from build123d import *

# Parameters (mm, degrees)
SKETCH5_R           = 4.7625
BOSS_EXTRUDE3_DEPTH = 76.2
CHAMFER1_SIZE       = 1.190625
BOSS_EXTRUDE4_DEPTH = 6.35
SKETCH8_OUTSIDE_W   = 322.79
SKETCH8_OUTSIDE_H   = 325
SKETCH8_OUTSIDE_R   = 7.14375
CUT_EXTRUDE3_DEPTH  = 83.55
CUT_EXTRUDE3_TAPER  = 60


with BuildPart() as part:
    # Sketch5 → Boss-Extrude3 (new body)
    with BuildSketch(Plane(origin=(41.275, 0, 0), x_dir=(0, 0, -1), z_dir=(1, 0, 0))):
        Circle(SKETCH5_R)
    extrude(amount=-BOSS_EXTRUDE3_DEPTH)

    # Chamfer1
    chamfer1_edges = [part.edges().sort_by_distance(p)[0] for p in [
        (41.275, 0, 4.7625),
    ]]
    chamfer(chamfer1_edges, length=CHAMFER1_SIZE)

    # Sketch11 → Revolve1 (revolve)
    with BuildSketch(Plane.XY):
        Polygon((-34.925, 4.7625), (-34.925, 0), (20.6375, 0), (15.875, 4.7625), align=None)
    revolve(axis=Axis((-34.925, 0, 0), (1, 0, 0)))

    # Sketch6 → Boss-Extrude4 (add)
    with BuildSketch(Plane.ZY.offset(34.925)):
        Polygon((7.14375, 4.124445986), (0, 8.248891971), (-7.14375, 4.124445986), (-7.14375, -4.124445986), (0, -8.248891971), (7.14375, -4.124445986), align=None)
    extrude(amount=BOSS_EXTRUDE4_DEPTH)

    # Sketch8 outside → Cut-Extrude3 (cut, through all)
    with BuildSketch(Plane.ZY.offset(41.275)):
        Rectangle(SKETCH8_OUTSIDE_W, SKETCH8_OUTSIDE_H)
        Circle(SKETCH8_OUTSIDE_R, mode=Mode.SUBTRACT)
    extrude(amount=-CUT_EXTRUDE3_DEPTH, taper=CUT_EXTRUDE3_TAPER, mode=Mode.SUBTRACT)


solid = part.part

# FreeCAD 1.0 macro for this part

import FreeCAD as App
import Part
import Sketcher

V = App.Vector
Q = App.Units.Quantity


def edges_at(feature, points):
    """Names of the edges that pass closest to the given points."""
    edges = feature.Shape.Edges
    near = lambda p: min(range(len(edges)), key=lambda i: edges[i].distToShape(Part.Vertex(*p))[0])
    return sorted({f"Edge{near(p) + 1}" for p in points})


def add_polygon(sketch, points):
    """Adds a closed chain of lines whose ends are joined by coincident constraints."""
    first, n = sketch.GeometryCount, len(points)
    for a, b in zip(points, points[1:] + points[:1]):
        sketch.addGeometry(Part.LineSegment(App.Vector(*a, 0), App.Vector(*b, 0)), False)
    for i in range(n):
        sketch.addConstraint(Sketcher.Constraint("Coincident", first + i, 2, first + (i + 1) % n, 1))

doc = App.newDocument("Part")
body = doc.addObject("PartDesign::Body", "Body")

sketch1 = body.newObject("Sketcher::SketchObject", "Sketch")
sketch1.AttachmentSupport = (doc.getObject("YZ_Plane"), [""])
sketch1.MapMode = "FlatFace"
sketch1.AttachmentOffset = App.Placement(V(0, 0, 1.625 * 25.4), App.Rotation())
sketch1.addGeometry(Part.Circle(V(0, 0, 0), V(0, 0, 1), 4.7625), False)
sketch1.addConstraint([
    Sketcher.Constraint("Coincident", 0, 3, -1, 1),
    Sketcher.Constraint("Diameter", 0, Q("0.375 in")),
])
pad1 = body.newObject("PartDesign::Pad", "Pad")
pad1.Profile = sketch1
pad1.Length = Q("3 in")
pad1.Reversed = True
doc.recompute()

chamfer = body.newObject("PartDesign::Chamfer", "Chamfer")
chamfer.Base = (pad1, edges_at(pad1, [(41.275, 0, 4.763)]))
chamfer.Size = Q("0.046875 in")

sketch2 = body.newObject("Sketcher::SketchObject", "Sketch001")
sketch2.AttachmentSupport = (doc.getObject("XY_Plane"), [""])
sketch2.MapMode = "FlatFace"
add_polygon(sketch2, [(-34.925, 4.7625), (-34.925, 0), (20.6375, 0), (15.875, 4.7625)])
sketch2.addConstraint([
    Sketcher.Constraint("Vertical", 0),
    Sketcher.Constraint("Horizontal", 1),
    Sketcher.Constraint("Horizontal", 3),
    Sketcher.Constraint("PointOnObject", 0, 2, -1),
    Sketcher.Constraint("DistanceX", 3, 2, 3, 1, Q("2 in")),
    Sketcher.Constraint("Angle", 2, Q("135 deg")),
    Sketcher.Constraint("DistanceX", 1, 1, 1, 2, Q("2.1875 in")),
    Sketcher.Constraint("DistanceX", 0, 2, -1, 1, Q("1.375 in")),
])
revolution = body.newObject("PartDesign::Revolution", "Revolution")
revolution.Profile = sketch2
revolution.ReferenceAxis = (sketch2, ["H_Axis"])
revolution.Angle = 360

sketch3 = body.newObject("Sketcher::SketchObject", "Sketch002")
sketch3.AttachmentSupport = (doc.getObject("YZ_Plane"), [""])
sketch3.MapMode = "FlatFace"
sketch3.AttachmentOffset = App.Placement(V(0, 0, -1.375 * 25.4), App.Rotation())
add_polygon(sketch3, [(4.124446, 7.14375), (8.248892, 0), (4.124446, -7.14375), (-4.124446, -7.14375), (-8.248892, 0), (-4.124446, 7.14375)])
sketch3.addConstraint([
    Sketcher.Constraint("Horizontal", 2),
    Sketcher.Constraint("Horizontal", 5),
    Sketcher.Constraint("Symmetric", 0, 2, 3, 2, -1, 1),
    Sketcher.Constraint("Symmetric", 1, 2, 4, 2, -1, 1),
    Sketcher.Constraint("PointOnObject", 0, 2, -1),
    Sketcher.Constraint("Parallel", 0, 3),
    Sketcher.Constraint("Vertical", 2, 2, 4, 2),
    Sketcher.Constraint("Angle", 0, Q("-60 deg")),
    Sketcher.Constraint("DistanceY", 1, 2, -1, 1, Q("0.28125 in")),
    Sketcher.Constraint("DistanceX", 2, 2, 2, 1, 8.248892),
])
pad2 = body.newObject("PartDesign::Pad", "Pad001")
pad2.Profile = sketch3
pad2.Length = Q("0.25 in")
pad2.Reversed = True

sketch4 = body.newObject("Sketcher::SketchObject", "Sketch003")
sketch4.AttachmentSupport = (doc.getObject("YZ_Plane"), [""])
sketch4.MapMode = "FlatFace"
sketch4.AttachmentOffset = App.Placement(V(0, 0, -1.625 * 25.4), App.Rotation())
add_polygon(sketch4, [(162.5, -161.395), (-162.5, -161.395), (-162.5, 161.395), (162.5, 161.395)])
sketch4.addGeometry(Part.Circle(V(0, 0, 0), V(0, 0, 1), 7.14375), False)
sketch4.addConstraint([
    Sketcher.Constraint("Horizontal", 0),
    Sketcher.Constraint("Vertical", 1),
    Sketcher.Constraint("Horizontal", 2),
    Sketcher.Constraint("Vertical", 3),
    Sketcher.Constraint("Coincident", 4, 3, -1, 1),
    Sketcher.Constraint("Symmetric", 0, 2, 2, 2, -1, 1),
    Sketcher.Constraint("Diameter", 4, Q("0.5625 in")),
    Sketcher.Constraint("DistanceX", 0, 2, 0, 1, 325.0),
    Sketcher.Constraint("DistanceY", 1, 1, 1, 2, 322.79),
])
pocket1 = body.newObject("PartDesign::Pocket", "Pocket")
pocket1.Profile = sketch4
pocket1.Length = 83.55
pocket1.Reversed = True
pocket1.TaperAngle = 60

doc.recompute()
